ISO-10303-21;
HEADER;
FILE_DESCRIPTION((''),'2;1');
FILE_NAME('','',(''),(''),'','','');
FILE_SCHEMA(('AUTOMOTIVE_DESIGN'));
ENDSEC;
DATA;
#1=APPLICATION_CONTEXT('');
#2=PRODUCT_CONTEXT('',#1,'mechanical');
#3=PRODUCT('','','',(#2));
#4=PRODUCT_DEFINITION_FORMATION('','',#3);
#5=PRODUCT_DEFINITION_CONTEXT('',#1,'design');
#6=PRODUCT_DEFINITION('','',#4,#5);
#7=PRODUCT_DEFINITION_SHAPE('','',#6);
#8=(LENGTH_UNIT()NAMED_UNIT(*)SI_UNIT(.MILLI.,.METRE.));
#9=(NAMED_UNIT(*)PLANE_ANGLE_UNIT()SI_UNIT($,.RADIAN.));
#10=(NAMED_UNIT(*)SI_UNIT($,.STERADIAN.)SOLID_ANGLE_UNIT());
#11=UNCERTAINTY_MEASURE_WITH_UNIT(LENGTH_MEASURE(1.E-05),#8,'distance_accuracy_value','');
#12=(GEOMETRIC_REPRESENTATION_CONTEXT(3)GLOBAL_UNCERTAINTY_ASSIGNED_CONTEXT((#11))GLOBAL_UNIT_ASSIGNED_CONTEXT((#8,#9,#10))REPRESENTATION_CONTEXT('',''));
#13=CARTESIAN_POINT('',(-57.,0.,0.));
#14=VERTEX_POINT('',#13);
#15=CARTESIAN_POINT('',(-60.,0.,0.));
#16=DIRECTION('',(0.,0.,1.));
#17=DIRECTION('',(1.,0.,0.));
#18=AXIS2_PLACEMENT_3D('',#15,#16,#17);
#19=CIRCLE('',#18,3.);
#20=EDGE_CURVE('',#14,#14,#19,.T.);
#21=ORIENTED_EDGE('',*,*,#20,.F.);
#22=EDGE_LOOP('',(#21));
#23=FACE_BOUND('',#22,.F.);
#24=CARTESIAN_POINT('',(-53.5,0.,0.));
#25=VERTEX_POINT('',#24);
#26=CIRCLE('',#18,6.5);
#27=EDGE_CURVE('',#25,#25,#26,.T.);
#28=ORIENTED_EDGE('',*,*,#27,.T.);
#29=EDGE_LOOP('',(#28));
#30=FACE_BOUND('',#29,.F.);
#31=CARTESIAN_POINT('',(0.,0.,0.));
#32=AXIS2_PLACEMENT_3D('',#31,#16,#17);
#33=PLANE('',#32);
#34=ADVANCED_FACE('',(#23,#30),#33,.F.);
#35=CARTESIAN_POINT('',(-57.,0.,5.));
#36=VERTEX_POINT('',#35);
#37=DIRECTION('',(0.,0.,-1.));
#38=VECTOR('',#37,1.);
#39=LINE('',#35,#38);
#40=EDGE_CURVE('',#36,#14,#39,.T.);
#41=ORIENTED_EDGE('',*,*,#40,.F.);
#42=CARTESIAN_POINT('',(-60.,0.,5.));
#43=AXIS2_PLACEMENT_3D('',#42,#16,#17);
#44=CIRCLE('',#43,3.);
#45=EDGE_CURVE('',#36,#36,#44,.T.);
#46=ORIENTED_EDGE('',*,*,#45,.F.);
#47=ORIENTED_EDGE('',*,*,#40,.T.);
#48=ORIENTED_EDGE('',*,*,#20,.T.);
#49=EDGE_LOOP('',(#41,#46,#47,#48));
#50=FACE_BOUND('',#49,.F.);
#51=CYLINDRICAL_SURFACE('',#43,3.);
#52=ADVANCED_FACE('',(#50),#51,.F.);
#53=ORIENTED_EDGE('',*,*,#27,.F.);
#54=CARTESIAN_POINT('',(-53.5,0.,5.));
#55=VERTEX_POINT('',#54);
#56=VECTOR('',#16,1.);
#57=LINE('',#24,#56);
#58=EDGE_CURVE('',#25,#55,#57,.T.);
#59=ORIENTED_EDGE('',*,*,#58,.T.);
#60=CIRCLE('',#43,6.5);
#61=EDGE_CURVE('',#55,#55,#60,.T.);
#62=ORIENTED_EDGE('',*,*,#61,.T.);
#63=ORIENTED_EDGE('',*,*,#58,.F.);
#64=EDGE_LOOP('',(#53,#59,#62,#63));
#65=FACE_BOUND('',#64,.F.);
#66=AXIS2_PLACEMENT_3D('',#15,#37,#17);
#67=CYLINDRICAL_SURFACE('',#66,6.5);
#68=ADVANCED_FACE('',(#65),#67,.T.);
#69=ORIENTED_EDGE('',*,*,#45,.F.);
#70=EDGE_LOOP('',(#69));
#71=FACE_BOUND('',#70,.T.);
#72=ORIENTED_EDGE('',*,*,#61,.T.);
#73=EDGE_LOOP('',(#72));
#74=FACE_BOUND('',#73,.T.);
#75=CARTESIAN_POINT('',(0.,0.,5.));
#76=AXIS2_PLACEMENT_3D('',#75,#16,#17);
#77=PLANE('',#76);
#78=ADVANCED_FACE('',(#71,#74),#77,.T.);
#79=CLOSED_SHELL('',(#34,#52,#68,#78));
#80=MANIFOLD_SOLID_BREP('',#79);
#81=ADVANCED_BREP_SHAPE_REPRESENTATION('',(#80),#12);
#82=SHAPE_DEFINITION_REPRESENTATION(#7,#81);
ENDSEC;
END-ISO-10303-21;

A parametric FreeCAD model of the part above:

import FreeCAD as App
import Part
import Sketcher

V = App.Vector
Q = App.Units.Quantity

doc = App.newDocument("Part")
body = doc.addObject("PartDesign::Body", "Body")

# Sketch on XY plane
sketch1 = body.newObject("Sketcher::SketchObject", "Sketch")
sketch1.AttachmentSupport = (doc.getObject("XY_Plane"), [""])
sketch1.MapMode = "FlatFace"
sketch1.addGeometry(Part.Circle(V(-60, 0, 0), V(0, 0, 1), 6), False)
sketch1.addConstraint(Sketcher.Constraint("PointOnObject", 0, 3, -1))
sketch1.addConstraint(Sketcher.Constraint("Diameter", 0, Q("13 mm")))
sketch1.addConstraint(Sketcher.Constraint("DistanceX", 0, 3, -1, 1, Q("60 mm")))
pad1 = body.newObject("PartDesign::Pad", "Pad")
pad1.Profile = sketch1
pad1.Length = 5

# Sketch on XY plane
sketch2 = body.newObject("Sketcher::SketchObject", "Sketch001")
sketch2.AttachmentSupport = (doc.getObject("XY_Plane"), [""])
sketch2.MapMode = "FlatFace"
sketch2.AttachmentOffset = App.Placement(V(0, 0, 5), App.Rotation())
sketch2.addGeometry(Part.Circle(V(-60, 0, 0), V(0, 0, 1), 3), False)
sketch2.addGeometry(Part.Circle(V(-57.3, -17.7, 0), V(0, 0, 1), 3), False)
sketch2.addGeometry(Part.Circle(V(-49.6, -33.8, 0), V(0, 0, 1), 3), False)
sketch2.addGeometry(Part.Circle(V(-37.4, -46.9, 0), V(0, 0, 1), 3), False)
sketch2.addGeometry(Part.Circle(V(-21.9, -55.9, 0), V(0, 0, 1), 3), False)
sketch2.addGeometry(Part.Circle(V(-4.5, -59.8, 0), V(0, 0, 1), 3), False)
sketch2.addGeometry(Part.Circle(V(13.4, -58.5, 0), V(0, 0, 1), 3), False)
sketch2.addGeometry(Part.Circle(V(30, -52, 0), V(0, 0, 1), 3), False)
sketch2.addGeometry(Part.Circle(V(44, -40.8, 0), V(0, 0, 1), 3), False)
sketch2.addGeometry(Part.Circle(V(54.1, -26, 0), V(0, 0, 1), 3), False)
sketch2.addGeometry(Part.Circle(V(59.3, -8.9, 0), V(0, 0, 1), 3), False)
sketch2.addGeometry(Part.Circle(V(59.3, 8.9, 0), V(0, 0, 1), 3), False)
sketch2.addGeometry(Part.Circle(V(54.1, 26, 0), V(0, 0, 1), 3), False)
sketch2.addGeometry(Part.Circle(V(44, 40.8, 0), V(0, 0, 1), 3), False)
sketch2.addGeometry(Part.Circle(V(30, 52, 0), V(0, 0, 1), 3), False)
sketch2.addGeometry(Part.Circle(V(13.4, 58.5, 0), V(0, 0, 1), 3), False)
sketch2.addGeometry(Part.Circle(V(-4.5, 59.8, 0), V(0, 0, 1), 3), False)
sketch2.addGeometry(Part.Circle(V(-21.9, 55.9, 0), V(0, 0, 1), 3), False)
sketch2.addGeometry(Part.Circle(V(-37.4, 46.9, 0), V(0, 0, 1), 3), False)
sketch2.addGeometry(Part.Circle(V(-49.6, 33.8, 0), V(0, 0, 1), 3), False)
sketch2.addGeometry(Part.Circle(V(-57.3, 17.7, 0), V(0, 0, 1), 3), False)
sketch2.addConstraint(Sketcher.Constraint("Equal", 0, 1))
sketch2.addConstraint(Sketcher.Constraint("Equal", 1, 2))
sketch2.addConstraint(Sketcher.Constraint("Equal", 2, 3))
sketch2.addConstraint(Sketcher.Constraint("Equal", 3, 4))
sketch2.addConstraint(Sketcher.Constraint("Equal", 4, 5))
sketch2.addConstraint(Sketcher.Constraint("Equal", 5, 6))
sketch2.addConstraint(Sketcher.Constraint("Equal", 6, 7))
sketch2.addConstraint(Sketcher.Constraint("Equal", 7, 8))
sketch2.addConstraint(Sketcher.Constraint("Equal", 8, 9))
sketch2.addConstraint(Sketcher.Constraint("Equal", 9, 10))
sketch2.addConstraint(Sketcher.Constraint("Equal", 10, 11))
sketch2.addConstraint(Sketcher.Constraint("Equal", 11, 12))
sketch2.addConstraint(Sketcher.Constraint("Equal", 12, 13))
sketch2.addConstraint(Sketcher.Constraint("Equal", 13, 14))
sketch2.addConstraint(Sketcher.Constraint("Equal", 14, 15))
sketch2.addConstraint(Sketcher.Constraint("Equal", 15, 16))
sketch2.addConstraint(Sketcher.Constraint("Equal", 16, 17))
sketch2.addConstraint(Sketcher.Constraint("Equal", 17, 18))
sketch2.addConstraint(Sketcher.Constraint("Equal", 18, 19))
sketch2.addConstraint(Sketcher.Constraint("Equal", 19, 20))
sketch2.addConstraint(Sketcher.Constraint("Symmetric", 10, 3, 11, 3, -1))
sketch2.addConstraint(Sketcher.Constraint("Symmetric", 9, 3, 12, 3, -1))
sketch2.addConstraint(Sketcher.Constraint("Symmetric", 8, 3, 13, 3, -1))
sketch2.addConstraint(Sketcher.Constraint("Symmetric", 7, 3, 14, 3, -1))
sketch2.addConstraint(Sketcher.Constraint("Symmetric", 6, 3, 15, 3, -1))
sketch2.addConstraint(Sketcher.Constraint("Symmetric", 5, 3, 16, 3, -1))
sketch2.addConstraint(Sketcher.Constraint("Symmetric", 4, 3, 17, 3, -1))
sketch2.addConstraint(Sketcher.Constraint("Symmetric", 3, 3, 18, 3, -1))
sketch2.addConstraint(Sketcher.Constraint("Symmetric", 2, 3, 19, 3, -1))
sketch2.addConstraint(Sketcher.Constraint("Symmetric", 1, 3, 20, 3, -1))
sketch2.addConstraint(Sketcher.Constraint("PointOnObject", 0, 3, -1))
sketch2.addConstraint(Sketcher.Constraint("Diameter", 0, Q("6 mm")))
sketch2.addConstraint(Sketcher.Constraint("DistanceX", 0, 3, -1, 1, Q("60 mm")))
sketch2.addConstraint(Sketcher.Constraint("DistanceX", -1, 1, 7, 3, Q("30 mm")))
sketch2.addConstraint(Sketcher.Constraint("DistanceY", 3, 3, -1, 1, Q("46.91 mm")))
sketch2.addConstraint(Sketcher.Constraint("DistanceX", 1, 3, 2, 3, Q("7.76 mm")))
sketch2.addConstraint(Sketcher.Constraint("DistanceX", -1, 1, 8, 3, Q("43.983 mm")))
sketch2.addConstraint(Sketcher.Constraint("DistanceX", -1, 1, 9, 3, Q("54.058 mm")))
sketch2.addConstraint(Sketcher.Constraint("DistanceY", 9, 3, -1, 1, Q("26.033 mm")))
sketch2.addConstraint(Sketcher.Constraint("DistanceY", 2, 3, 1, 3, Q("16.114 mm")))
sketch2.addConstraint(Sketcher.Constraint("DistanceX", 2, 3, 3, 3, Q("12.165 mm")))
sketch2.addConstraint(Sketcher.Constraint("DistanceX", 3, 3, 4, 3, Q("15.489 mm")))
sketch2.addConstraint(Sketcher.Constraint("DistanceY", 4, 3, 1, 3, Q("38.167 mm")))
sketch2.addConstraint(Sketcher.Constraint("DistanceY", 5, 3, 2, 3, Q("26.033 mm")))
sketch2.addConstraint(Sketcher.Constraint("DistanceX", 5, 3, 6, 3, Q("17.835 mm")))
sketch2.addConstraint(Sketcher.Constraint("DistanceY", 4, 3, 7, 3, Q("3.891 mm")))
sketch2.addConstraint(Sketcher.Constraint("DistanceY", 7, 3, 8, 3, Q("11.151 mm")))
sketch2.addConstraint(Sketcher.Constraint("DistanceX", 5, 3, 8, 3, Q("48.467 mm")))
sketch2.addConstraint(Sketcher.Constraint("DistanceY", 8, 3, 10, 3, Q("31.868 mm")))
sketch2.addConstraint(Sketcher.Constraint("DistanceY", 10, 3, 11, 3, Q("17.885 mm")))
sketch2.addConstraint(Sketcher.Constraint("DistanceX", 1, 3, -1, 1, Q("57.3344 mm")))
sketch2.addConstraint(Sketcher.Constraint("DistanceY", 6, 3, -1, 1, Q("58.4957 mm")))
sketch2.addConstraint(Sketcher.Constraint("DistanceX", -1, 1, 10, 3, Q("59.3298 mm")))
pocket1 = body.newObject("PartDesign::Pocket", "Pocket")
pocket1.Profile = sketch2
pocket1.Type = "ThroughAll"

doc.recompute()
